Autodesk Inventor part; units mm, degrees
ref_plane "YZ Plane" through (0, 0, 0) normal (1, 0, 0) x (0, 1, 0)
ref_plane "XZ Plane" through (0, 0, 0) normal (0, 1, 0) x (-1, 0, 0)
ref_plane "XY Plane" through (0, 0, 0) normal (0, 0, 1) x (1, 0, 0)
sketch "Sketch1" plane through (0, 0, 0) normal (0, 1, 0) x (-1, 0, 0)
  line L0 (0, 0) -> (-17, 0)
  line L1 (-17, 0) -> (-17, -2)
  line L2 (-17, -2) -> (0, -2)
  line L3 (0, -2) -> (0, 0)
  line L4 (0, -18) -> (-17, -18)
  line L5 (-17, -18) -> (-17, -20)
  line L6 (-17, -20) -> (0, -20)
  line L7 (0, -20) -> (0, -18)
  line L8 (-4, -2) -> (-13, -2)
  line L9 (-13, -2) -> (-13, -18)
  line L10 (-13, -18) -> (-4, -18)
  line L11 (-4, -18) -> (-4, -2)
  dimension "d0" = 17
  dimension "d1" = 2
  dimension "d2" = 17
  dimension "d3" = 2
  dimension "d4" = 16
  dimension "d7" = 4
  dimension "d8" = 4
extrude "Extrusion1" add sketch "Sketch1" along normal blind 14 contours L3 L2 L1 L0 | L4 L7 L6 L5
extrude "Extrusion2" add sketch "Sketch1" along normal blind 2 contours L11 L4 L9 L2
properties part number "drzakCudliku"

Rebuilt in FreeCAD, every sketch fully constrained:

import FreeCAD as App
import Part
import Sketcher
from FreeCAD import Vector

doc = App.newDocument("Part")
params = doc.addObject("Spreadsheet::Sheet", "Params")
for row, (alias, value) in enumerate([
    ("sketch1_width", "17 mm"),
    ("sketch1_height", "2 mm"),
    ("pad1_length", "14 mm"),
    ("sketch2_height", "16 mm"),
    ("sketch2_width", "9 mm"),
    ("pad2_length", "2 mm"),
], start=1):
    params.set(f"A{row}", alias)
    params.set(f"B{row}", "=" + value)
    params.setAlias(f"B{row}", alias)

body = doc.addObject("PartDesign::Body", "Body")
body.AllowCompound = True

# Sketch on XZ plane
sketch1 = body.newObject("Sketcher::SketchObject", "Sketch")
sketch1.AttachmentSupport = (doc.getObject("XZ_Plane"), [""])
sketch1.MapMode = "FlatFace"
sketch1.addGeometry(Part.LineSegment(Vector(0, -2, 0), Vector(0, 0, 0)), False)
sketch1.addGeometry(Part.LineSegment(Vector(0, 0, 0), Vector(17, 0, 0)), False)
sketch1.addGeometry(Part.LineSegment(Vector(17, 0, 0), Vector(17, -2, 0)), False)
sketch1.addGeometry(Part.LineSegment(Vector(17, -2, 0), Vector(0, -2, 0)), False)
sketch1.addGeometry(Part.LineSegment(Vector(0, -18, 0), Vector(17, -18, 0)), False)
sketch1.addGeometry(Part.LineSegment(Vector(17, -18, 0), Vector(17, -20, 0)), False)
sketch1.addGeometry(Part.LineSegment(Vector(17, -20, 0), Vector(0, -20, 0)), False)
sketch1.addGeometry(Part.LineSegment(Vector(0, -20, 0), Vector(0, -18, 0)), False)
sketch1.addConstraint(Sketcher.Constraint("Coincident", 0, 2, 1, 1))
sketch1.addConstraint(Sketcher.Constraint("Coincident", 1, 2, 2, 1))
sketch1.addConstraint(Sketcher.Constraint("Coincident", 2, 2, 3, 1))
sketch1.addConstraint(Sketcher.Constraint("Coincident", 3, 2, 0, 1))
sketch1.addConstraint(Sketcher.Constraint("Coincident", 4, 2, 5, 1))
sketch1.addConstraint(Sketcher.Constraint("Coincident", 5, 2, 6, 1))
sketch1.addConstraint(Sketcher.Constraint("Coincident", 6, 2, 7, 1))
sketch1.addConstraint(Sketcher.Constraint("Coincident", 7, 2, 4, 1))
sketch1.addConstraint(Sketcher.Constraint("Vertical", 0))
sketch1.addConstraint(Sketcher.Constraint("Horizontal", 1))
sketch1.addConstraint(Sketcher.Constraint("Vertical", 2))
sketch1.addConstraint(Sketcher.Constraint("Horizontal", 3))
sketch1.addConstraint(Sketcher.Constraint("Horizontal", 4))
sketch1.addConstraint(Sketcher.Constraint("Vertical", 5))
sketch1.addConstraint(Sketcher.Constraint("Horizontal", 6))
sketch1.addConstraint(Sketcher.Constraint("Vertical", 7))
sketch1.addConstraint(Sketcher.Constraint("Coincident", 0, 2, -1, 1))
sketch1.addConstraint(Sketcher.Constraint("PointOnObject", 6, 2, -2))
sketch1.addConstraint(Sketcher.Constraint("Vertical", 2, 2, 4, 2))
sketch1.addConstraint(Sketcher.Constraint("Equal", 2, 5))
sketch1.addConstraint(Sketcher.Constraint("DistanceX", 1, 1, 1, 2, 17.0))
sketch1.addConstraint(Sketcher.Constraint("DistanceY", 0, 1, 0, 2, 2.0))
sketch1.addConstraint(Sketcher.Constraint("DistanceY", 4, 2, 2, 2, 16.0))
sketch1.setExpression("Constraints[20]", "Params.sketch1_width")
sketch1.setExpression("Constraints[21]", "Params.sketch1_height")
pad1 = body.newObject("PartDesign::Pad", "Pad")
pad1.Profile = sketch1
pad1.setExpression("Length", "Params.pad1_length")
pad1.Reversed = True

# Sketch on XZ plane
sketch2 = body.newObject("Sketcher::SketchObject", "Sketch001")
sketch2.AttachmentSupport = (doc.getObject("XZ_Plane"), [""])
sketch2.MapMode = "FlatFace"
sketch2.addGeometry(Part.LineSegment(Vector(4, -18, 0), Vector(4, -2, 0)), False)
sketch2.addGeometry(Part.LineSegment(Vector(4, -2, 0), Vector(13, -2, 0)), False)
sketch2.addGeometry(Part.LineSegment(Vector(13, -2, 0), Vector(13, -18, 0)), False)
sketch2.addGeometry(Part.LineSegment(Vector(13, -18, 0), Vector(4, -18, 0)), False)
sketch2.addConstraint(Sketcher.Constraint("Coincident", 0, 2, 1, 1))
sketch2.addConstraint(Sketcher.Constraint("Coincident", 1, 2, 2, 1))
sketch2.addConstraint(Sketcher.Constraint("Coincident", 2, 2, 3, 1))
sketch2.addConstraint(Sketcher.Constraint("Coincident", 3, 2, 0, 1))
sketch2.addConstraint(Sketcher.Constraint("Vertical", 0))
sketch2.addConstraint(Sketcher.Constraint("Horizontal", 1))
sketch2.addConstraint(Sketcher.Constraint("Vertical", 2))
sketch2.addConstraint(Sketcher.Constraint("Horizontal", 3))
sketch2.addConstraint(Sketcher.Constraint("DistanceY", 0, 1, 0, 2, 16.0))
sketch2.addConstraint(Sketcher.Constraint("DistanceX", -1, 1, 0, 2, 4.0))
sketch2.addConstraint(Sketcher.Constraint("DistanceY", 0, 2, -1, 1, 2.0))
sketch2.addConstraint(Sketcher.Constraint("DistanceX", 1, 1, 1, 2, 9.0))
sketch2.setExpression("Constraints[8]", "Params.sketch2_height")
sketch2.setExpression("Constraints[11]", "Params.sketch2_width")
pad2 = body.newObject("PartDesign::Pad", "Pad001")
pad2.Profile = sketch2
pad2.setExpression("Length", "Params.pad2_length")
pad2.Reversed = True

doc.recompute()
